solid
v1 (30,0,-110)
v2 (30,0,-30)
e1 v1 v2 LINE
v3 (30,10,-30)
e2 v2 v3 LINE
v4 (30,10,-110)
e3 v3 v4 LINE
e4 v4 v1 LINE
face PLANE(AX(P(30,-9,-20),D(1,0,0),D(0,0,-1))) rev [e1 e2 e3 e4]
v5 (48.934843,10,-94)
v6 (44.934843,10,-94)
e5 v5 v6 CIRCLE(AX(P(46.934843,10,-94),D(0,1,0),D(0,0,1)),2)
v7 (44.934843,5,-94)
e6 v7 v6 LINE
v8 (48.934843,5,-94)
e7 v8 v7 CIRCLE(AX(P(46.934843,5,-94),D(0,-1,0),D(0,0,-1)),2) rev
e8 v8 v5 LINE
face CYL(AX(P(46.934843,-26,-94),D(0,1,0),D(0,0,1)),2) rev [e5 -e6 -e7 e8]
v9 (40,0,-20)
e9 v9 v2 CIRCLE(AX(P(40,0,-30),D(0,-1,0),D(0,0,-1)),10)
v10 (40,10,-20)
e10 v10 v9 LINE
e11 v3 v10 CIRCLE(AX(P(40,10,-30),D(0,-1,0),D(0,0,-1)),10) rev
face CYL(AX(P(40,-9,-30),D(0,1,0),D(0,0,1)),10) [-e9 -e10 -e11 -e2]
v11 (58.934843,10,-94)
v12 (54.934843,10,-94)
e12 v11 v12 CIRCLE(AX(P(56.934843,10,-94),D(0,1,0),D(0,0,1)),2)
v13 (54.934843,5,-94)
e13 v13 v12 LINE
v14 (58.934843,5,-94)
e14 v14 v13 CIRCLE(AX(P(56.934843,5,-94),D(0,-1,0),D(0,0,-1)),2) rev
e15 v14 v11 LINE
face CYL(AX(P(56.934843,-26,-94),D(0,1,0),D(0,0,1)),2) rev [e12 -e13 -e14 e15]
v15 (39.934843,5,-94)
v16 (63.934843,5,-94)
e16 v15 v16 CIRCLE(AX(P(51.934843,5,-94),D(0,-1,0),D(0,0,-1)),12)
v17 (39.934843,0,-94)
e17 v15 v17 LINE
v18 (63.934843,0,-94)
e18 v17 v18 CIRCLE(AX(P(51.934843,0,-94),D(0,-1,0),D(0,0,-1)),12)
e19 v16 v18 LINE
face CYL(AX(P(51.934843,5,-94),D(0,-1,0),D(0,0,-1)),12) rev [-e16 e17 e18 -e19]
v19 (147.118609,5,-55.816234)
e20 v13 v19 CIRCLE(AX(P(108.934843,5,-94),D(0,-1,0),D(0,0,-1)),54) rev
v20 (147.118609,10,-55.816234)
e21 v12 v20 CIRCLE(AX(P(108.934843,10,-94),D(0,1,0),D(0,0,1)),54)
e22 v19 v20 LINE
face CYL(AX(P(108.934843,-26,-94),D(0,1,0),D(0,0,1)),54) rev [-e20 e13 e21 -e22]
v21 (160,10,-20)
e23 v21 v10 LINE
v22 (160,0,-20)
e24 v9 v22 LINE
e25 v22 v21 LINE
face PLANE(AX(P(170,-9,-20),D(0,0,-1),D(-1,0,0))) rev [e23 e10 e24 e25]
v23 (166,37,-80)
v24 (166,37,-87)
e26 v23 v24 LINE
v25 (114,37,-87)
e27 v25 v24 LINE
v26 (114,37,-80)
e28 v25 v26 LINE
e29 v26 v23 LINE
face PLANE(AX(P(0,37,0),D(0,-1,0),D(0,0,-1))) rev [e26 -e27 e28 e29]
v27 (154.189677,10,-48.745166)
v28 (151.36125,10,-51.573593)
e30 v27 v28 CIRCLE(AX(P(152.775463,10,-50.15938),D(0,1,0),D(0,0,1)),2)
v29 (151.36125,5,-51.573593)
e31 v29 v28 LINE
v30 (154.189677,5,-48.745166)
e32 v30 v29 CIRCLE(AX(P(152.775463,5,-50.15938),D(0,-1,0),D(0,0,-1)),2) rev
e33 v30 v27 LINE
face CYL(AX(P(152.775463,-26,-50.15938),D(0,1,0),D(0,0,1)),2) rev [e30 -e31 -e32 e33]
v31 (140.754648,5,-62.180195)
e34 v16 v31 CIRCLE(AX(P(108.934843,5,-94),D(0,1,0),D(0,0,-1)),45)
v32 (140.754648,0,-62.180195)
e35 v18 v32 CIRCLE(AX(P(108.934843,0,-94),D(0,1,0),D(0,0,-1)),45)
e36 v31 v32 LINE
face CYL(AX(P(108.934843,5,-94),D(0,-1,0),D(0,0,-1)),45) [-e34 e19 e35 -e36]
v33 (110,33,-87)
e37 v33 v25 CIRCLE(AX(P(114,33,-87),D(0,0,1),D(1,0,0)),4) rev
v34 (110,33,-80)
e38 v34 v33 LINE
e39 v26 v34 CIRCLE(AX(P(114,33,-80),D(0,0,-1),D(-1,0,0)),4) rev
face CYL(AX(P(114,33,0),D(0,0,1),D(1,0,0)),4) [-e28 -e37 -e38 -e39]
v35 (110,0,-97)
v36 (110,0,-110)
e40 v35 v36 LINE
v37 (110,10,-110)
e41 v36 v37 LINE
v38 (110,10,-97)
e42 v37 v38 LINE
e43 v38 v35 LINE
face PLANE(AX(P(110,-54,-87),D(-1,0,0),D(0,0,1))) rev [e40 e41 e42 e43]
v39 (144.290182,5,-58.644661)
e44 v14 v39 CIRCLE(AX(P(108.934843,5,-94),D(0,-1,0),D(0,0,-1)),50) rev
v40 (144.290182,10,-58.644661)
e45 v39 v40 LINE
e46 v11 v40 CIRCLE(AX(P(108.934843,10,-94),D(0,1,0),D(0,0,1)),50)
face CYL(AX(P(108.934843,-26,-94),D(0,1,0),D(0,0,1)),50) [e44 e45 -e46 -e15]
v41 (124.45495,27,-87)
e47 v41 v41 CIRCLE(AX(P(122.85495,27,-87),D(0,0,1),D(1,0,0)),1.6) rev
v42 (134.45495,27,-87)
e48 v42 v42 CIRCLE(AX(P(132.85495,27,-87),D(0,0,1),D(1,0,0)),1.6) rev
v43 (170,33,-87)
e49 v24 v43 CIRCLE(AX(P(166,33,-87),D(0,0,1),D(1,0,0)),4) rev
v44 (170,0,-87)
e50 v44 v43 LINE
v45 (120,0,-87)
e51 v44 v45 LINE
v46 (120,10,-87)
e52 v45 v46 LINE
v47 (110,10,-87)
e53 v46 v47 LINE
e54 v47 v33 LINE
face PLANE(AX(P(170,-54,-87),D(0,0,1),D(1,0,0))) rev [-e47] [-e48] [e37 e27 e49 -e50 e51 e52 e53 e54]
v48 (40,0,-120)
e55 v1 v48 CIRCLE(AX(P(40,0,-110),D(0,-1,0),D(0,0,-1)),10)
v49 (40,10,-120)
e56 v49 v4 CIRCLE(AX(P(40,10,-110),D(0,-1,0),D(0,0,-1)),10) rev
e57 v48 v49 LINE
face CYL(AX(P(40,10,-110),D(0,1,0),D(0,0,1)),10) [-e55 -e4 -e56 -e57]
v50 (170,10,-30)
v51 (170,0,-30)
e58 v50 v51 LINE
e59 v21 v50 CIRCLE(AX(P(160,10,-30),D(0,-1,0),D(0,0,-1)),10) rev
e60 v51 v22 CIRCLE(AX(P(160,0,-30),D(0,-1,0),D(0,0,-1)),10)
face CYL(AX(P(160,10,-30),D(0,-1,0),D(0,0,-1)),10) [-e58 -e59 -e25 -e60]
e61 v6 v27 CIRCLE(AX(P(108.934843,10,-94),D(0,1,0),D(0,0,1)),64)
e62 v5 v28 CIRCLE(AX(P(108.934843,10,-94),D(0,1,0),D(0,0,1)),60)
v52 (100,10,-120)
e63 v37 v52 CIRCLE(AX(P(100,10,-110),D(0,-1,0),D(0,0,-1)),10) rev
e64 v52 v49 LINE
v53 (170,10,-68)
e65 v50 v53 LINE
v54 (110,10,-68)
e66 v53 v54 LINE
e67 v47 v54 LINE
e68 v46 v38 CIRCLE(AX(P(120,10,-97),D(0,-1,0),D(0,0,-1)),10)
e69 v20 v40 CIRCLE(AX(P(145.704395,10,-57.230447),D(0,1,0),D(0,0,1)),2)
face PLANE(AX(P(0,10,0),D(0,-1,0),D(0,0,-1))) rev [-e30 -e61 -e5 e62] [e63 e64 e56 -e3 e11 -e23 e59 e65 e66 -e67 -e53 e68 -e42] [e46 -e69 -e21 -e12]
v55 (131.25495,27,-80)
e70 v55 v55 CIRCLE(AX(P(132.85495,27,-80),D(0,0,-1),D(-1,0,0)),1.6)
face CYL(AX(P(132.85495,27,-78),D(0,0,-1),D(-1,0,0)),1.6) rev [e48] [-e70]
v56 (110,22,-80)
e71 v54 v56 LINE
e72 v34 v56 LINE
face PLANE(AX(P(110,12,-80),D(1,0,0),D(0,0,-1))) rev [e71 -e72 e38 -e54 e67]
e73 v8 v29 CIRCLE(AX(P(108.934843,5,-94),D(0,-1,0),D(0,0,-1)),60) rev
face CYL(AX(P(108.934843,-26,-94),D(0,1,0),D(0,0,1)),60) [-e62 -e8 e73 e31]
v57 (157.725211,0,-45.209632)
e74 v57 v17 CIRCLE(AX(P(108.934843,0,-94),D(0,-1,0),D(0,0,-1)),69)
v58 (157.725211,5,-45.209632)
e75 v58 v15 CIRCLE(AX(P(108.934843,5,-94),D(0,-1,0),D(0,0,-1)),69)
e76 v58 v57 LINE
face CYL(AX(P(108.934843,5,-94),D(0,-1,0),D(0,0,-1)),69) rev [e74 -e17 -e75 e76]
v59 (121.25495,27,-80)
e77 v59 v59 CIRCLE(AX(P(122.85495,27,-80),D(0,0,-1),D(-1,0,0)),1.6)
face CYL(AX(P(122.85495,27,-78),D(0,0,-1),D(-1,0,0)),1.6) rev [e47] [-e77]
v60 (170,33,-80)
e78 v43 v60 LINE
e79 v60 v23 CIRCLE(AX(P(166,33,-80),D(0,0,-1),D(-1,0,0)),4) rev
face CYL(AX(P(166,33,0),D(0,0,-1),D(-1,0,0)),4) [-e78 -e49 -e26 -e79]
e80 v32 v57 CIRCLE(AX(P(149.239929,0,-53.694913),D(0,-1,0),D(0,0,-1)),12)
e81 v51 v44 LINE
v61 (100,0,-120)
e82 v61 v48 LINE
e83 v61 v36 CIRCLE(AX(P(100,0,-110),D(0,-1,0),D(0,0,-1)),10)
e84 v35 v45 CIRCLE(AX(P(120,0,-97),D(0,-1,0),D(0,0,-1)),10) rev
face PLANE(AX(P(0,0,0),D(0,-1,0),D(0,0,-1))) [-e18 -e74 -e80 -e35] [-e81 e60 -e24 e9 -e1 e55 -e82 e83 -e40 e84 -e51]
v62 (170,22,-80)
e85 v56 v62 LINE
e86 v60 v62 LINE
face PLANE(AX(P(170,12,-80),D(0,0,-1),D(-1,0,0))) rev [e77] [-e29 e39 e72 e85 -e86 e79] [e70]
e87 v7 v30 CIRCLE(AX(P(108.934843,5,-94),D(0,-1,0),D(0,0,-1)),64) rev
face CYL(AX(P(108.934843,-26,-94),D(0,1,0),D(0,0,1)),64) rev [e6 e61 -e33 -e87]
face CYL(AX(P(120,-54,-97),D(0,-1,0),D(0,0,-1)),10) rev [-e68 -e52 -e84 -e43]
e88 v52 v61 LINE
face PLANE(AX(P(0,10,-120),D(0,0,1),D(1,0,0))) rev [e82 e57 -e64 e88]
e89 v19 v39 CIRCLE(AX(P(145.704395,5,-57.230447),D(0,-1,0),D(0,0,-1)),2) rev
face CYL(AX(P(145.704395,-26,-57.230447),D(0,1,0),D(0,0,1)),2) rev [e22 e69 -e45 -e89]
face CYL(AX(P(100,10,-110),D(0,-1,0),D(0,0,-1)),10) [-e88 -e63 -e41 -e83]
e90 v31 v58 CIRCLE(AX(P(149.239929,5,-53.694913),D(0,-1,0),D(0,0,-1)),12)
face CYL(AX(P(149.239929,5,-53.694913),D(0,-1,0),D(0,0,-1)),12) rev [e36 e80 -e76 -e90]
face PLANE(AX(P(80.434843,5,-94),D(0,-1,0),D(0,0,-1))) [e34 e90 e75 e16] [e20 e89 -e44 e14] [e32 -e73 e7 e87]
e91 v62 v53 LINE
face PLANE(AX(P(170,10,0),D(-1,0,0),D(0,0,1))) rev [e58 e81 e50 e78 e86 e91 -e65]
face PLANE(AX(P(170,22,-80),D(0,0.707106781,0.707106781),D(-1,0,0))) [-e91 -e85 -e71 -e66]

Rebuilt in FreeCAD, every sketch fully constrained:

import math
import FreeCAD as App
import Part
import Sketcher

V = App.Vector
Q = App.Units.Quantity


def edges_at(feature, points):
    """Names of the edges that pass closest to the given points."""
    edges = feature.Shape.Edges
    near = lambda p: min(range(len(edges)), key=lambda i: edges[i].distToShape(Part.Vertex(*p))[0])
    return sorted({f"Edge{near(p) + 1}" for p in points})


def add_polygon(sketch, points):
    """Adds a closed chain of lines whose ends are joined by coincident constraints."""
    first, n = sketch.GeometryCount, len(points)
    for a, b in zip(points, points[1:] + points[:1]):
        sketch.addGeometry(Part.LineSegment(App.Vector(*a, 0), App.Vector(*b, 0)), False)
    for i in range(n):
        sketch.addConstraint(Sketcher.Constraint("Coincident", first + i, 2, first + (i + 1) % n, 1))

doc = App.newDocument("Part")
body = doc.addObject("PartDesign::Body", "Body")

sketch1 = body.newObject("Sketcher::SketchObject", "Sketch")
sketch1.AttachmentSupport = (doc.getObject("XZ_Plane"), [""])
sketch1.MapMode = "FlatFace"
add_polygon(sketch1, [(0, -120), (0, 0), (170, 0), (170, -120)])
sketch1.addConstraint([
    Sketcher.Constraint("Vertical", 0),
    Sketcher.Constraint("Horizontal", 1),
    Sketcher.Constraint("Vertical", 2),
    Sketcher.Constraint("Horizontal", 3),
    Sketcher.Constraint("Coincident", 0, 2, -1, 1),
    Sketcher.Constraint("DistanceX", 1, 1, 1, 2, Q("170 mm")),
    Sketcher.Constraint("DistanceY", 0, 1, 0, 2, Q("120 mm")),
])
pad1 = body.newObject("PartDesign::Pad", "Pad")
pad1.Profile = sketch1
pad1.Length = 10
pad1.Reversed = True

sketch2 = body.newObject("Sketcher::SketchObject", "Sketch001")
sketch2.AttachmentSupport = (doc.getObject("XZ_Plane"), [""])
sketch2.MapMode = "FlatFace"
sketch2.AttachmentOffset = App.Placement(V(0, 0, -10), App.Rotation())
add_polygon(sketch2, [(110, -120), (110, -80), (170, -80), (170, -120)])
sketch2.addConstraint([
    Sketcher.Constraint("Vertical", 0),
    Sketcher.Constraint("Horizontal", 1),
    Sketcher.Constraint("Vertical", 2),
    Sketcher.Constraint("Horizontal", 3),
    Sketcher.Constraint("DistanceX", 1, 1, 1, 2, Q("60 mm")),
    Sketcher.Constraint("DistanceY", 0, 1, 0, 2, Q("40 mm")),
    Sketcher.Constraint("DistanceX", -1, 1, 0, 2, Q("110 mm")),
    Sketcher.Constraint("DistanceY", 0, 2, -1, 1, Q("80 mm")),
])
pad2 = body.newObject("PartDesign::Pad", "Pad001")
pad2.Profile = sketch2
pad2.Length = 2
pad2.Reversed = True

sketch3 = body.newObject("Sketcher::SketchObject", "Sketch002")
sketch3.AttachmentSupport = (doc.getObject("XZ_Plane"), [""])
sketch3.MapMode = "FlatFace"
sketch3.AttachmentOffset = App.Placement(V(0, 0, -12), App.Rotation())
add_polygon(sketch3, [(110, -88), (110, -80), (170, -80), (170, -88)])
sketch3.addConstraint([
    Sketcher.Constraint("Vertical", 0),
    Sketcher.Constraint("Horizontal", 1),
    Sketcher.Constraint("Vertical", 2),
    Sketcher.Constraint("Horizontal", 3),
    Sketcher.Constraint("DistanceX", 1, 1, 1, 2, Q("60 mm")),
    Sketcher.Constraint("DistanceY", 0, 1, 0, 2, Q("8 mm")),
    Sketcher.Constraint("DistanceX", -1, 1, 0, 2, Q("110 mm")),
    Sketcher.Constraint("DistanceY", 0, 2, -1, 1, Q("80 mm")),
])
pad3 = body.newObject("PartDesign::Pad", "Pad002")
pad3.Profile = sketch3
pad3.Length = 25
pad3.Reversed = True

sketch4 = body.newObject("Sketcher::SketchObject", "Sketch003")
sketch4.AttachmentSupport = (doc.getObject("XY_Plane"), [""])
sketch4.MapMode = "FlatFace"
sketch4.AttachmentOffset = App.Placement(V(0, 0, -88), App.Rotation())
sketch4.addGeometry([
    Part.Circle(V(132.9, 27, 0), V(0, 0, 1), 1.6),
    Part.Circle(V(122.9, 27, 0), V(0, 0, 1), 1.6),
], False)
sketch4.addConstraint([
    Sketcher.Constraint("Equal", 0, 1),
    Sketcher.Constraint("Horizontal", 0, 3, 1, 3),
    Sketcher.Constraint("Diameter", 0, Q("3.2 mm")),
    Sketcher.Constraint("DistanceY", -1, 1, 0, 3, Q("27 mm")),
    Sketcher.Constraint("DistanceX", 1, 3, 0, 3, Q("10 mm")),
    Sketcher.Constraint("DistanceX", -1, 1, 0, 3, Q("132.85495 mm")),
])
pocket1 = body.newObject("PartDesign::Pocket", "Pocket")
pocket1.Profile = sketch4
pocket1.Length = 10
pocket1.Reversed = True

sketch5 = body.newObject("Sketcher::SketchObject", "Sketch004")
sketch5.AttachmentSupport = (doc.getObject("XZ_Plane"), [""])
sketch5.MapMode = "FlatFace"
sketch5.AttachmentOffset = App.Placement(V(0, 0, -10), App.Rotation())
sketch5.addGeometry([
    Part.ArcOfCircle(Part.Circle(V(108.9, -94, 0), V(0, 0, 1), 64), math.radians(45), math.radians(180)),
    Part.ArcOfCircle(Part.Circle(V(152.8, -50.2, 0), V(0, 0, 1), 2), math.radians(-135), math.radians(45)),
    Part.ArcOfCircle(Part.Circle(V(108.9, -94, 0), V(0, 0, 1), 60), math.radians(45), math.radians(180)),
    Part.ArcOfCircle(Part.Circle(V(46.9, -94, 0), V(0, 0, 1), 2), math.radians(180), math.radians(360)),
    Part.ArcOfCircle(Part.Circle(V(108.9, -94, 0), V(0, 0, 1), 50), math.radians(45), math.radians(180)),
    Part.ArcOfCircle(Part.Circle(V(56.9, -94, 0), V(0, 0, 1), 2), math.radians(180), math.radians(360)),
    Part.ArcOfCircle(Part.Circle(V(108.9, -94, 0), V(0, 0, 1), 54), math.radians(45), math.radians(180)),
    Part.ArcOfCircle(Part.Circle(V(145.7, -57.2, 0), V(0, 0, 1), 2), math.radians(-135), math.radians(45)),
], False)
sketch5.addConstraint([
    Sketcher.Constraint("Tangent", 0, 1, 1, 2),
    Sketcher.Constraint("Tangent", 1, 1, 2, 1),
    Sketcher.Constraint("Tangent", 2, 2, 3, 2),
    Sketcher.Constraint("Tangent", 3, 1, 0, 2),
    Sketcher.Constraint("Tangent", 4, 2, 5, 2),
    Sketcher.Constraint("Tangent", 5, 1, 6, 2),
    Sketcher.Constraint("Tangent", 6, 1, 7, 2),
    Sketcher.Constraint("Tangent", 7, 1, 4, 1),
    Sketcher.Constraint("Coincident", 2, 3, 0, 3),
    Sketcher.Constraint("Coincident", 4, 3, 0, 3),
    Sketcher.Constraint("Coincident", 6, 3, 0, 3),
    Sketcher.Constraint("Equal", 3, 5),
    Sketcher.Constraint("Horizontal", 2, 3, 3, 3),
    Sketcher.Constraint("Horizontal", 4, 3, 5, 3),
    Sketcher.Constraint("Radius", 0, Q("64 mm")),
    Sketcher.Constraint("Radius", 1, Q("2 mm")),
    Sketcher.Constraint("Radius", 4, Q("50 mm")),
    Sketcher.Constraint("DistanceY", 0, 3, -1, 1, Q("94 mm")),
    Sketcher.Constraint("DistanceY", 1, 3, -1, 1, Q("50.15938 mm")),
    Sketcher.Constraint("DistanceX", -1, 1, 1, 1, Q("151.36125 mm")),
    Sketcher.Constraint("DistanceX", -1, 1, 6, 1, Q("147.118609 mm")),
])
pocket2 = body.newObject("PartDesign::Pocket", "Pocket001")
pocket2.Profile = sketch5
pocket2.Length = 36
pocket2.Reversed = True
doc.recompute()

chamfer = body.newObject("PartDesign::Chamfer", "Chamfer")
chamfer.Base = (pocket2, edges_at(pocket2, [(140, 10, -80)]))
chamfer.Size = 12
doc.recompute()

fillet = body.newObject("PartDesign::Fillet", "Fillet")
fillet.Base = (chamfer, edges_at(chamfer, [(170, 37, -84), (110, 37, -84)]))
fillet.Radius = 4
doc.recompute()

chamfer2 = body.newObject("PartDesign::Chamfer", "Chamfer001")
chamfer2.Base = (fillet, edges_at(fillet, [(140, 12, -88)]))
chamfer2.Size = 3

sketch6 = body.newObject("Sketcher::SketchObject", "Sketch005")
sketch6.AttachmentSupport = (doc.getObject("XZ_Plane"), [""])
sketch6.MapMode = "FlatFace"
sketch6.addGeometry([
    Part.ArcOfCircle(Part.Circle(V(109, -94, 0), V(0, 0, 1), 45), math.radians(45), math.radians(180)),
    Part.ArcOfCircle(Part.Circle(V(149, -54, 0), V(0, 0, 1), 12), math.radians(-135), math.radians(45)),
    Part.ArcOfCircle(Part.Circle(V(109, -94, 0), V(0, 0, 1), 69), math.radians(45), math.radians(180)),
    Part.ArcOfCircle(Part.Circle(V(52, -94, 0), V(0, 0, 1), 12), math.radians(180), math.radians(360)),
], False)
sketch6.addConstraint([
    Sketcher.Constraint("Tangent", 0, 1, 1, 1),
    Sketcher.Constraint("Tangent", 1, 2, 2, 1),
    Sketcher.Constraint("Tangent", 2, 2, 3, 1),
    Sketcher.Constraint("Tangent", 3, 2, 0, 2),
    Sketcher.Constraint("Coincident", 2, 3, 0, 3),
    Sketcher.Constraint("Horizontal", 2, 3, 3, 3),
    Sketcher.Constraint("Radius", 0, Q("45 mm")),
    Sketcher.Constraint("Radius", 1, Q("12 mm")),
    Sketcher.Constraint("DistanceY", 0, 3, -1, 1, Q("94 mm")),
    Sketcher.Constraint("DistanceX", -1, 1, 1, 3, Q("149.239929 mm")),
    Sketcher.Constraint("DistanceX", -1, 1, 0, 1, Q("140.754648 mm")),
])
pocket3 = body.newObject("PartDesign::Pocket", "Pocket002")
pocket3.Profile = sketch6
pocket3.Length = 5

sketch7 = body.newObject("Sketcher::SketchObject", "Sketch006")
sketch7.AttachmentSupport = (doc.getObject("XZ_Plane"), [""])
sketch7.MapMode = "FlatFace"
sketch7.AttachmentOffset = App.Placement(V(0, 0, -10), App.Rotation())
add_polygon(sketch7, [(0, 0), (170, 0), (170, -20), (30, -20), (30, -120), (0, -120)])
sketch7.addConstraint([
    Sketcher.Constraint("Horizontal", 0),
    Sketcher.Constraint("Vertical", 1),
    Sketcher.Constraint("Horizontal", 2),
    Sketcher.Constraint("Vertical", 3),
    Sketcher.Constraint("Horizontal", 4),
    Sketcher.Constraint("Vertical", 5),
    Sketcher.Constraint("Coincident", 5, 2, -1, 1),
    Sketcher.Constraint("DistanceX", 0, 1, 0, 2, Q("170 mm")),
    Sketcher.Constraint("DistanceX", 2, 2, 2, 1, Q("140 mm")),
    Sketcher.Constraint("DistanceY", 1, 2, 1, 1, Q("20 mm")),
    Sketcher.Constraint("DistanceY", 3, 2, 3, 1, Q("100 mm")),
])
pocket4 = body.newObject("PartDesign::Pocket", "Pocket003")
pocket4.Profile = sketch7
pocket4.Length = 19
pocket4.Reversed = True
doc.recompute()

fillet2 = body.newObject("PartDesign::Fillet", "Fillet001")
fillet2.Base = (pocket4, edges_at(pocket4, [
    (30, 5, -120),
    (170, 5, -20),
    (110, 11, -120),
    (30, 5, -20),
    (170, 6, -120),
]))
fillet2.Radius = 10

sketch8 = body.newObject("Sketcher::SketchObject", "Sketch007")
sketch8.AttachmentSupport = (doc.getObject("XZ_Plane"), [""])
sketch8.MapMode = "FlatFace"
sketch8.AttachmentOffset = App.Placement(V(0, 0, -37), App.Rotation())
add_polygon(sketch8, [(170, -87), (170, -88), (206.7, -135.3), (110, -138.4), (110, -87)])
sketch8.addConstraint([
    Sketcher.Constraint("Vertical", 0),
    Sketcher.Constraint("Vertical", 3),
    Sketcher.Constraint("Horizontal", 4),
    Sketcher.Constraint("DistanceX", 4, 1, 4, 2, Q("60 mm")),
    Sketcher.Constraint("DistanceY", 0, 2, 0, 1, Q("1 mm")),
    Sketcher.Constraint("DistanceX", -1, 1, 0, 2, Q("170 mm")),
    Sketcher.Constraint("DistanceY", 0, 2, -1, 1, Q("88 mm")),
    Sketcher.Constraint("Distance", 1, Q("59.872529 mm")),
    Sketcher.Constraint("Distance", 2, Q("96.74454 mm")),
    Sketcher.Constraint("DistanceY", 3, 1, 3, 2, Q("51.435407 mm")),
])
pocket5 = body.newObject("PartDesign::Pocket", "Pocket004")
pocket5.Profile = sketch8
pocket5.Length = 91
pocket5.Reversed = True
doc.recompute()

fillet3 = body.newObject("PartDesign::Fillet", "Fillet002")
fillet3.Base = (pocket5, edges_at(pocket5, [(110, 5, -87), (110, 5, -120)]))
fillet3.Radius = 10

doc.recompute()
